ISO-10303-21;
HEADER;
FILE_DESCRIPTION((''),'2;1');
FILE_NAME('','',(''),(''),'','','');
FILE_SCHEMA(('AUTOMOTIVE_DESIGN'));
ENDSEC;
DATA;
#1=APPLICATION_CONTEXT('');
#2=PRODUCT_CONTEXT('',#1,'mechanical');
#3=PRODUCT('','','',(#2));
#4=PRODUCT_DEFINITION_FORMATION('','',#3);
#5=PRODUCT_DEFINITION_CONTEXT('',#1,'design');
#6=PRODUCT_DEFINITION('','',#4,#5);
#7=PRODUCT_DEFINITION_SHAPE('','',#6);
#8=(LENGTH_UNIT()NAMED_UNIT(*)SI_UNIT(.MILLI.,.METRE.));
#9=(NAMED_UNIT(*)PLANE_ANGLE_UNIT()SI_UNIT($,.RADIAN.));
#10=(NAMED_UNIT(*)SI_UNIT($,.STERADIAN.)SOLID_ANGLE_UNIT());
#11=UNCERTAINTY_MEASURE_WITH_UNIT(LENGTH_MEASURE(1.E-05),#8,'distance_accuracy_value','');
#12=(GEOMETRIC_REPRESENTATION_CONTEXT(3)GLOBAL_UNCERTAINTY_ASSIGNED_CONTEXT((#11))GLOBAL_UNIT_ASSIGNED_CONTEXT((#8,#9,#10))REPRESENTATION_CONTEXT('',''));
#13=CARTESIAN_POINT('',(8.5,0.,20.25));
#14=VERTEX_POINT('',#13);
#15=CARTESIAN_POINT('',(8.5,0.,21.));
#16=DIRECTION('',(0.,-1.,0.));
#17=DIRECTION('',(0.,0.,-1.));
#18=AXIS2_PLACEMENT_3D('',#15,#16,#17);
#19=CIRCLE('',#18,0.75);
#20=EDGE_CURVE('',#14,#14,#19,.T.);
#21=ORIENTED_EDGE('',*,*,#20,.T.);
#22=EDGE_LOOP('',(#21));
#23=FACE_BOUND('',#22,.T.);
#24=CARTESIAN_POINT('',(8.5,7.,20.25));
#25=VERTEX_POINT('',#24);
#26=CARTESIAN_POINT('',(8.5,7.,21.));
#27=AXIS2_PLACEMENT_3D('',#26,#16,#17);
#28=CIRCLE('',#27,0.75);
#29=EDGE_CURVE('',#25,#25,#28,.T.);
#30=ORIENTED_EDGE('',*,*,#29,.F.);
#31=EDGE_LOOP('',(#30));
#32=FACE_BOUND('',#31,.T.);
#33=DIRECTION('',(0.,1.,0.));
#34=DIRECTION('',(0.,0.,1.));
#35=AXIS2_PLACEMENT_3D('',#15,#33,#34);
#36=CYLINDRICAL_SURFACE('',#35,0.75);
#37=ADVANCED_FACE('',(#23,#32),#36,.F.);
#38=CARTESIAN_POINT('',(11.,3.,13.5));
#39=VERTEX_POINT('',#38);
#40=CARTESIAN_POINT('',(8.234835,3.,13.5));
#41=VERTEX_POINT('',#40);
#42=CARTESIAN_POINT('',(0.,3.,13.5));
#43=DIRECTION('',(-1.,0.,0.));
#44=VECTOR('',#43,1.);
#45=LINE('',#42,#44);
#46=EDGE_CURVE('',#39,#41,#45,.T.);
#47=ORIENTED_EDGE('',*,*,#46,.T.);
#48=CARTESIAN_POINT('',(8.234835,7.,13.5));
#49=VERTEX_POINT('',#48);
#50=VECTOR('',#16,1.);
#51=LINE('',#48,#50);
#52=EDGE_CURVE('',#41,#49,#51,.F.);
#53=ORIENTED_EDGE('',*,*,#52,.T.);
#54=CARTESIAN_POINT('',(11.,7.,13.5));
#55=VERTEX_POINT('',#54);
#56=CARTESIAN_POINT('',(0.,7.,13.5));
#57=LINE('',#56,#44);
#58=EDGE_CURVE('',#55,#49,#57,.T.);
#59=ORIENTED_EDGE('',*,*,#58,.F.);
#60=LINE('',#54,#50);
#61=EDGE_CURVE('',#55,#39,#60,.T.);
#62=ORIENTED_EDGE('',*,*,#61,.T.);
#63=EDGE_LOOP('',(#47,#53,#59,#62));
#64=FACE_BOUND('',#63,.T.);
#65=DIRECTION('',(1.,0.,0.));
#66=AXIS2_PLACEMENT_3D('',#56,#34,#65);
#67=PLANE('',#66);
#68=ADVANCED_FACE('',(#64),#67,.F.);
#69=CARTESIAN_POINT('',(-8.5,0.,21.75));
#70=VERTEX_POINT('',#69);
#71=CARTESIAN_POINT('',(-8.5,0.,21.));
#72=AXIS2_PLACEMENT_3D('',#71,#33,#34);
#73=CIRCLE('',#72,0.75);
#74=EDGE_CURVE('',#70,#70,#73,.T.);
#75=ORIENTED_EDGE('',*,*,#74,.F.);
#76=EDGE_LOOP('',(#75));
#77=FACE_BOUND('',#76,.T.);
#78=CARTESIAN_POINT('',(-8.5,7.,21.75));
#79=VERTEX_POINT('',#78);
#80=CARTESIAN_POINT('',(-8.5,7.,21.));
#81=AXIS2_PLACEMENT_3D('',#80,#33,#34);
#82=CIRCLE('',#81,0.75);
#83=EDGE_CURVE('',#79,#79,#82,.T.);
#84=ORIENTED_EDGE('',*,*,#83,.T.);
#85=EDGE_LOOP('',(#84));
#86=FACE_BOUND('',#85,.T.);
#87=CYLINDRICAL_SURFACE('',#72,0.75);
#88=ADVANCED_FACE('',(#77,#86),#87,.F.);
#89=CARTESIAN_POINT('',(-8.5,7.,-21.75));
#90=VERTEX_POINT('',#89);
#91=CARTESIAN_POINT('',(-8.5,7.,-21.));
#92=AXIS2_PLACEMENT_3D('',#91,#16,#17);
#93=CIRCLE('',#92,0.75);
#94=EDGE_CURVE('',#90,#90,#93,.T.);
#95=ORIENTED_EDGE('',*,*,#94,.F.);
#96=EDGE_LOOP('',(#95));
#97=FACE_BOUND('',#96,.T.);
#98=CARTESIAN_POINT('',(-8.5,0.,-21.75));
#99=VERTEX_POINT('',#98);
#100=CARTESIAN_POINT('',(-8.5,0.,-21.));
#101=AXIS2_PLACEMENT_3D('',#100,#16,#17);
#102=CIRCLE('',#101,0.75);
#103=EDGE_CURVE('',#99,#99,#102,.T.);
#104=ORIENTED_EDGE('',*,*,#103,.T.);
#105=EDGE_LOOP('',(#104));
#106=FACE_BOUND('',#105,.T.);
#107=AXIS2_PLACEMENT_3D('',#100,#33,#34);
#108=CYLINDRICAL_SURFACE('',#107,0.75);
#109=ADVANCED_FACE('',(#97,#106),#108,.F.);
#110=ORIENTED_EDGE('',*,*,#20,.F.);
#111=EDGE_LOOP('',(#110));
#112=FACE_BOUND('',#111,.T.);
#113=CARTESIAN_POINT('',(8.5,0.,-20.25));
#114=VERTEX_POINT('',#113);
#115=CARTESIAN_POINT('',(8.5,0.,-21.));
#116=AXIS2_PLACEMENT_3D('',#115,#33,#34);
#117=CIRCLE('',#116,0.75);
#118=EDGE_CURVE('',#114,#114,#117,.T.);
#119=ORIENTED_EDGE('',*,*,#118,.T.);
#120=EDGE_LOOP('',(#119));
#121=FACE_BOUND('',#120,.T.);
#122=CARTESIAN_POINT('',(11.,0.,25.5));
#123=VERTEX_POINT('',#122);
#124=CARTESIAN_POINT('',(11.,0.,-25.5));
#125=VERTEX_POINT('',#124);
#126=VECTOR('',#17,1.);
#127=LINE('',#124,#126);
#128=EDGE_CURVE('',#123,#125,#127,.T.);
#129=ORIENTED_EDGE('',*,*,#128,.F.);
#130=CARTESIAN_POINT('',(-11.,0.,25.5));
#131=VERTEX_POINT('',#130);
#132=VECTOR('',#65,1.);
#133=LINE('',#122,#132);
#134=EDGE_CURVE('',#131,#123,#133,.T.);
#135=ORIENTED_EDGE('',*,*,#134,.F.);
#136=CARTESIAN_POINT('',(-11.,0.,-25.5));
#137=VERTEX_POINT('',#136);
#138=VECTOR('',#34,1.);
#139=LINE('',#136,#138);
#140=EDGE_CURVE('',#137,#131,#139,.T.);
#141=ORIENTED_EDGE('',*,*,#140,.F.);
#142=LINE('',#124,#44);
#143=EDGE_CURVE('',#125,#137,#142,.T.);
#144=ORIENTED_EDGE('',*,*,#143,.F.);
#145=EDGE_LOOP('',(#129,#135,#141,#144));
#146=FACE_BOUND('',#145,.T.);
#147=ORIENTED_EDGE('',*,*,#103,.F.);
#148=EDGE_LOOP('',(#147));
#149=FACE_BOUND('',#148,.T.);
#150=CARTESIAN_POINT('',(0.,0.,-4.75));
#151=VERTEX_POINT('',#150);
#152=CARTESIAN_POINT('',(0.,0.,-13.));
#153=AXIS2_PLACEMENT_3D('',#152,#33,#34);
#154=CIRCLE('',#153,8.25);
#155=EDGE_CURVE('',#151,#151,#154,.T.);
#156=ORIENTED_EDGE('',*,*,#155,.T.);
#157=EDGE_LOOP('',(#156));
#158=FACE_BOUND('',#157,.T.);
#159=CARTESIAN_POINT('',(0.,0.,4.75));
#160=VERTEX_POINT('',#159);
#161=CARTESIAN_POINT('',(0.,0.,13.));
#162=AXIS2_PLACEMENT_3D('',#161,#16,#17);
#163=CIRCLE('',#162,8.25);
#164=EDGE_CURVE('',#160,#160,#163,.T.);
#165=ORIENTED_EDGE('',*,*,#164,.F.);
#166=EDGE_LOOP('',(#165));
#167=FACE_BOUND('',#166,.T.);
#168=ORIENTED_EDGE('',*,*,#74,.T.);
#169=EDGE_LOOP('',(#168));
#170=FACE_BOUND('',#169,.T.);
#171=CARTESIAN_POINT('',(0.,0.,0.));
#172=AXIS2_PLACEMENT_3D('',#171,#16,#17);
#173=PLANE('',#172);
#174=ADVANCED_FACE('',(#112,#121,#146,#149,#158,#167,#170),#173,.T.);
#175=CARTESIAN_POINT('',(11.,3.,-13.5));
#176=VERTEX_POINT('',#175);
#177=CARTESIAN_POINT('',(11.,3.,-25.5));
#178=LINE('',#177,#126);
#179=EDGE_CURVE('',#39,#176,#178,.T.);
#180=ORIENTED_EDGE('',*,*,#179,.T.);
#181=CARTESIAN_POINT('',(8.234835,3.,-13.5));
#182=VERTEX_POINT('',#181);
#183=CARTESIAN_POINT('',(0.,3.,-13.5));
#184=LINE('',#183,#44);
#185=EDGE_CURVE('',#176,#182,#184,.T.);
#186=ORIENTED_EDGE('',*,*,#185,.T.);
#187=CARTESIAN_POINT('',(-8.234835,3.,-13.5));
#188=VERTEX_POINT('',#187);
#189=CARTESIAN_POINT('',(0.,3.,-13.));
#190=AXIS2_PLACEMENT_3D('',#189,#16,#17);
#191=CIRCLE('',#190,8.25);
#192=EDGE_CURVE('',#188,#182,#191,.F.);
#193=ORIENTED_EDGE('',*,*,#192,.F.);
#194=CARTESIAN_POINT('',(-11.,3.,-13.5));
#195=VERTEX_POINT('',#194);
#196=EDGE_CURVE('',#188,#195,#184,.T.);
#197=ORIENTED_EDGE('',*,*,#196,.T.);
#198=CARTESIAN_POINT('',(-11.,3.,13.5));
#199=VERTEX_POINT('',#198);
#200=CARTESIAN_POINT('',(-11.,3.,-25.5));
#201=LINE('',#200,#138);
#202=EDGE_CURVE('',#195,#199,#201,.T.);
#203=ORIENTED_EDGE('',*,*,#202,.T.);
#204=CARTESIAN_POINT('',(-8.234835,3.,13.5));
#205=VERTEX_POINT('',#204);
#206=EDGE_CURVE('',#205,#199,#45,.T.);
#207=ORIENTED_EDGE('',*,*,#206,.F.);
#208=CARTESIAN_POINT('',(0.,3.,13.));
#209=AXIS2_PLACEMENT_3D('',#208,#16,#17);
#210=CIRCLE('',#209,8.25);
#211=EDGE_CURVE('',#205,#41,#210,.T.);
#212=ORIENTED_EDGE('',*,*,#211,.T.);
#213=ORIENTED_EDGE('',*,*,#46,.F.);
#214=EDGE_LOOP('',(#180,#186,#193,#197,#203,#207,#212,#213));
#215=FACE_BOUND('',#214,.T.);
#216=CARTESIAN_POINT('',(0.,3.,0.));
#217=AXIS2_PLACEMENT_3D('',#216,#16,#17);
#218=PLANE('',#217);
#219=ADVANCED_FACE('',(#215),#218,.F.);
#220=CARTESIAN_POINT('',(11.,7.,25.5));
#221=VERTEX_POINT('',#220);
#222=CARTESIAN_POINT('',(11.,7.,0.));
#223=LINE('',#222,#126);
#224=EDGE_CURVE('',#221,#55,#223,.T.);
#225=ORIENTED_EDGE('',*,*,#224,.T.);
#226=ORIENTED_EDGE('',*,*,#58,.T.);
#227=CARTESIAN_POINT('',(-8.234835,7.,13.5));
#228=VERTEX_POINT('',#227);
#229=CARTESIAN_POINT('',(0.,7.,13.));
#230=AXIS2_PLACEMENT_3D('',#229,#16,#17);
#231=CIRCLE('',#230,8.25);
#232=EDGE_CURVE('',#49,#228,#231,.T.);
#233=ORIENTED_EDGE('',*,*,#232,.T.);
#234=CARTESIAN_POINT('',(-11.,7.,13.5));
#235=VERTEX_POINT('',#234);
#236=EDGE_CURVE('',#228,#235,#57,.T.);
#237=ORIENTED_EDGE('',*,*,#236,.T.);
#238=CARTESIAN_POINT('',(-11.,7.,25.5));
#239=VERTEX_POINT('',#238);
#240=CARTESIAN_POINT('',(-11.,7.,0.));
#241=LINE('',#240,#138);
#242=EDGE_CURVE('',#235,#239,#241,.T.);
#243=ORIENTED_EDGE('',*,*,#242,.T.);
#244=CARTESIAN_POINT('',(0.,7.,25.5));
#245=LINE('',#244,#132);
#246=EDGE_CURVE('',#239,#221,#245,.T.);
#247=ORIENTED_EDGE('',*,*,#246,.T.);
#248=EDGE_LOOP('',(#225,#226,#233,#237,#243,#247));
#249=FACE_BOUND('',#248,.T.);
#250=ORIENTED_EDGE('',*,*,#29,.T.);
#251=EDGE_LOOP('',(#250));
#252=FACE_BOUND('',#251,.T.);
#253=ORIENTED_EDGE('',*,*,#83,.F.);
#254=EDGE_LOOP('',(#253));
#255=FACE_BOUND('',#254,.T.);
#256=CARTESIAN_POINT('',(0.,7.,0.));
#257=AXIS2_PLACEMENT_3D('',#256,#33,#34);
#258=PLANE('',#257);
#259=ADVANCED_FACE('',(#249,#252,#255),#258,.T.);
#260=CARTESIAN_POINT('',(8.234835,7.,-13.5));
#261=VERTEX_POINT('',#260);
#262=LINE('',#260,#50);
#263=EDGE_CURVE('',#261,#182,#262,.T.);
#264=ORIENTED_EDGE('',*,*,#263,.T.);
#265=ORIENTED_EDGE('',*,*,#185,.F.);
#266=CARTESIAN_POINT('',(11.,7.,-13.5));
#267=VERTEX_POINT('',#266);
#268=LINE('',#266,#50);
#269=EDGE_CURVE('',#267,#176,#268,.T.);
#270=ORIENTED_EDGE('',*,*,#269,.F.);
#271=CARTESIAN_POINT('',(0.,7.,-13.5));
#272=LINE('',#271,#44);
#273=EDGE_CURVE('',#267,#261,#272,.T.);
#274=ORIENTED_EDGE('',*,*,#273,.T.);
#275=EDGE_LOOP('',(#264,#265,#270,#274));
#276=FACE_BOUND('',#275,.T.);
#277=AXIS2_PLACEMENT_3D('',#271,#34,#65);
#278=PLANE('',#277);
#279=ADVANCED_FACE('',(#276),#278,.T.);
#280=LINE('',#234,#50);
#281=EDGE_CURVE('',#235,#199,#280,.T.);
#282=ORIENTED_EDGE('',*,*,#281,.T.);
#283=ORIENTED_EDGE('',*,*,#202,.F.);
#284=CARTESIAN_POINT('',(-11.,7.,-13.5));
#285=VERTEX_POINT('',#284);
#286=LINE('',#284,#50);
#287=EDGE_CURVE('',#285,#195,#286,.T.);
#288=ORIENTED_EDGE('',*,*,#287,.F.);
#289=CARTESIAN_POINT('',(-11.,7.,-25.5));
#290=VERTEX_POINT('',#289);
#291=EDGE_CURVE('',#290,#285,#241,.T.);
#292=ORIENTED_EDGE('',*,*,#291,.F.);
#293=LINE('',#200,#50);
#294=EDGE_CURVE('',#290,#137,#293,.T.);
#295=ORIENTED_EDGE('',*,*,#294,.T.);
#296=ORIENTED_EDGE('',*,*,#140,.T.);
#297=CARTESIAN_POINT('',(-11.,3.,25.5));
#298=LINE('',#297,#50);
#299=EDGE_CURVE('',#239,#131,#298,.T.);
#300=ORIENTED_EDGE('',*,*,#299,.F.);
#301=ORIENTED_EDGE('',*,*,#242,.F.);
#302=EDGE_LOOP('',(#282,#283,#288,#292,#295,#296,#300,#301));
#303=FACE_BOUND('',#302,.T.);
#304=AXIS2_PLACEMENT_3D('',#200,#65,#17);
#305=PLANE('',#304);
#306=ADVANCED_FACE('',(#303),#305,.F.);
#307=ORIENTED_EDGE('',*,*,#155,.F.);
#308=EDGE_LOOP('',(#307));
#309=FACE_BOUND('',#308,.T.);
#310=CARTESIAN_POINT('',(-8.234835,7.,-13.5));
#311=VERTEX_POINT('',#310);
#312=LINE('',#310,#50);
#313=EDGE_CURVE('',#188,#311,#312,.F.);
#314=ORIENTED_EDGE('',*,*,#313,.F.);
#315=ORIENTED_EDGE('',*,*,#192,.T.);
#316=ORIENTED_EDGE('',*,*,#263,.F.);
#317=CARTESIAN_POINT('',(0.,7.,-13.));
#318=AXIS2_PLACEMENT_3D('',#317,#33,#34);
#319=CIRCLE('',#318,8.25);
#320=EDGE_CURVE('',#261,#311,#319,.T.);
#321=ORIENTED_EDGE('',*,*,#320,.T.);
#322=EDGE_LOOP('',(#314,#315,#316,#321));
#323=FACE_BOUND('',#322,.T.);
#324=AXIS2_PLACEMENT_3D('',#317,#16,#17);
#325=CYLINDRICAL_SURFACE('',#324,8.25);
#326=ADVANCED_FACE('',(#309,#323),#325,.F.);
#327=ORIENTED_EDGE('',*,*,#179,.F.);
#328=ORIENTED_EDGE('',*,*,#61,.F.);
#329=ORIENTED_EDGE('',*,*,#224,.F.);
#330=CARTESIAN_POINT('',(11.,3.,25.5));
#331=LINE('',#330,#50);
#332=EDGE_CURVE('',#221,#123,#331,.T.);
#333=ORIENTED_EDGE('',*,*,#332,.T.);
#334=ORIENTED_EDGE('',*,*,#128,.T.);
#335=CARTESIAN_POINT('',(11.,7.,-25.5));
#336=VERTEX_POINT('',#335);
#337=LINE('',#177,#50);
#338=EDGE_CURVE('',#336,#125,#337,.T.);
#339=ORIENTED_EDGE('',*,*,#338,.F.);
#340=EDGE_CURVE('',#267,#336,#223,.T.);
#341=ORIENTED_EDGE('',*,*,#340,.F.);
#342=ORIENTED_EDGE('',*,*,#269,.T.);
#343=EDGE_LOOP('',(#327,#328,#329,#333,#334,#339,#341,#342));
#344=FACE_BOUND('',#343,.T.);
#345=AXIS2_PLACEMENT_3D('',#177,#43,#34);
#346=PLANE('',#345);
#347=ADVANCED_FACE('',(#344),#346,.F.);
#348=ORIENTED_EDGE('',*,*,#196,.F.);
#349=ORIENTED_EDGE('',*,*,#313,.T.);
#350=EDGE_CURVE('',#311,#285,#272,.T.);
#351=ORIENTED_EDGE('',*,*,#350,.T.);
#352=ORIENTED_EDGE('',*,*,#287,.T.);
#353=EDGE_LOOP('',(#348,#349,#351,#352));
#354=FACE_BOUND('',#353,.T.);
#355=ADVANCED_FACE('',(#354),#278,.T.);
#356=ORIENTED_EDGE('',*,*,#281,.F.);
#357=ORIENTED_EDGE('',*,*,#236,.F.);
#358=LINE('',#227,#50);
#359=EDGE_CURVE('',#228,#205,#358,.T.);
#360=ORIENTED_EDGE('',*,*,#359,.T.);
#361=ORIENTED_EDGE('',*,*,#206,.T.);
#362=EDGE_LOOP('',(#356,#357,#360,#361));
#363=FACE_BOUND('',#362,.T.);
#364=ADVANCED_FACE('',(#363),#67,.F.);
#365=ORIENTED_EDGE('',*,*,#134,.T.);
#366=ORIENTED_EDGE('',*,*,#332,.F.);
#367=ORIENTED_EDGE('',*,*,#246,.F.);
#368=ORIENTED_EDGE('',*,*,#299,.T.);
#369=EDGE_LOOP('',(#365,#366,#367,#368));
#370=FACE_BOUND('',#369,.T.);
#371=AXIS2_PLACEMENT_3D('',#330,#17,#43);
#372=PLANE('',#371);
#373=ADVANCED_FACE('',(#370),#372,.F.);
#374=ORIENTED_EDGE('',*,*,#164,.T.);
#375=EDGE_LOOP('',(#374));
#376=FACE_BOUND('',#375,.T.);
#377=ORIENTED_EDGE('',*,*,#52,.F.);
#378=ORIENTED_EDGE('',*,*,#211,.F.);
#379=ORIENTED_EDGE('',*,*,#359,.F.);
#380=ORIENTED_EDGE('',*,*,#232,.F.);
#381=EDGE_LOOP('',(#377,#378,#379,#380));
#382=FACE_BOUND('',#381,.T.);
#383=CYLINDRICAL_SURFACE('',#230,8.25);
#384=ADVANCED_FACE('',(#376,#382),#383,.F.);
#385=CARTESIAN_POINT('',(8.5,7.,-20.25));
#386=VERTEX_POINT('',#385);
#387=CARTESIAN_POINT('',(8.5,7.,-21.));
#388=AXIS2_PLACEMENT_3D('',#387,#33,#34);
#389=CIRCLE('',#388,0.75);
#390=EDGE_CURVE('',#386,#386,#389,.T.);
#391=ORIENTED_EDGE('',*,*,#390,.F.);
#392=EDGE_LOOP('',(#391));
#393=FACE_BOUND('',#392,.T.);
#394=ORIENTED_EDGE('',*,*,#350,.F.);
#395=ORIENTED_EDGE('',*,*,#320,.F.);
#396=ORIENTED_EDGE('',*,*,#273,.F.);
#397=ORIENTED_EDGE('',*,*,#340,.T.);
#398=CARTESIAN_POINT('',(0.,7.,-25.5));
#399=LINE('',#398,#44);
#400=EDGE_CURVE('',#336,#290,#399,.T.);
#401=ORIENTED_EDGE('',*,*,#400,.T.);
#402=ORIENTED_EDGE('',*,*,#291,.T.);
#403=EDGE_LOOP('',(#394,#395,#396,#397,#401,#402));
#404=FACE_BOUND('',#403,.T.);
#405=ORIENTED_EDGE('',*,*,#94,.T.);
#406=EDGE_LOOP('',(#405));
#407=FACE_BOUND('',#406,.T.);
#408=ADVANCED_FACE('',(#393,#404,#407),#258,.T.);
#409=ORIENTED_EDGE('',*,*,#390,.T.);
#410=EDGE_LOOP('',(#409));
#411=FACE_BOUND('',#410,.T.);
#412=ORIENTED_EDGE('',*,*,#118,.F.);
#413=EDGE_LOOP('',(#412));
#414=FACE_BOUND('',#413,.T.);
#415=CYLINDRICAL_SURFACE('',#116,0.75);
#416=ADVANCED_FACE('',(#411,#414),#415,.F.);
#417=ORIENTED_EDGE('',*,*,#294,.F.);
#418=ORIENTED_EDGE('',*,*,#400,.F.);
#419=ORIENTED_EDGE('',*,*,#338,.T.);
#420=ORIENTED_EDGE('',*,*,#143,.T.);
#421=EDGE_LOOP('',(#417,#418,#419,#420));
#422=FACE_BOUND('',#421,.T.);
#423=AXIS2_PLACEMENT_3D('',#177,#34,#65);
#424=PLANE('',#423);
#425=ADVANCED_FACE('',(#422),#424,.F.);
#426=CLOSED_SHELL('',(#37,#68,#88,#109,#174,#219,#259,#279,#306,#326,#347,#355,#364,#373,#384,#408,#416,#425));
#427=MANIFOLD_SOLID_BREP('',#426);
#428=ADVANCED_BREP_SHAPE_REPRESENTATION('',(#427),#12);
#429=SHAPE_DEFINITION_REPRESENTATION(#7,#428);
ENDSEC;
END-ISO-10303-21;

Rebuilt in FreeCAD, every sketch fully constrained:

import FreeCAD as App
import Part
import Sketcher

V = App.Vector
Q = App.Units.Quantity


def add_polygon(sketch, points):
    """Adds a closed chain of lines whose ends are joined by coincident constraints."""
    first, n = sketch.GeometryCount, len(points)
    for a, b in zip(points, points[1:] + points[:1]):
        sketch.addGeometry(Part.LineSegment(App.Vector(*a, 0), App.Vector(*b, 0)), False)
    for i in range(n):
        sketch.addConstraint(Sketcher.Constraint("Coincident", first + i, 2, first + (i + 1) % n, 1))

doc = App.newDocument("Part")
params = doc.addObject("Spreadsheet::Sheet", "Params")
for row, (alias, value) in enumerate([
    ("sketch1_width", "22 mm"),
    ("sketch1_height", "51 mm"),
    ("pad1_length", "3 mm"),
    ("sketch2_width", "22 mm"),
    ("sketch2_height", "12 mm"),
    ("pad2_length", "4 mm"),
    ("sketch3_diameter", "16.5 mm"),
    ("sketch4_diameter", "1.5 mm"),
], start=1):
    params.set(f"A{row}", alias)
    params.set(f"B{row}", "=" + value)
    params.setAlias(f"B{row}", alias)

body = doc.addObject("PartDesign::Body", "Body")

# Sketch on XZ plane
sketch1 = body.newObject("Sketcher::SketchObject", "Sketch")
sketch1.AttachmentSupport = (doc.getObject("XZ_Plane"), [""])
sketch1.MapMode = "FlatFace"
add_polygon(sketch1, [(-11, -26), (-11, 26), (11, 26), (11, -26)])  # lines 0-3
sketch1.addConstraint([
    Sketcher.Constraint("Vertical", 0),
    Sketcher.Constraint("Horizontal", 1),
    Sketcher.Constraint("Vertical", 2),
    Sketcher.Constraint("Horizontal", 3),
    Sketcher.Constraint("Symmetric", 0, 2, 2, 2, -1, 1),
    Sketcher.Constraint("DistanceX", 1, 1, 1, 2, Q("22 mm")),
    Sketcher.Constraint("DistanceY", 0, 1, 0, 2, Q("51 mm")),
])
sketch1.setExpression("Constraints[9]", "Params.sketch1_width")
sketch1.setExpression("Constraints[10]", "Params.sketch1_height")
pad1 = body.newObject("PartDesign::Pad", "Pad")
pad1.Profile = sketch1
pad1.setExpression("Length", "Params.pad1_length")
pad1.Reversed = True

# Sketch on XZ plane
sketch2 = body.newObject("Sketcher::SketchObject", "Sketch001")
sketch2.AttachmentSupport = (doc.getObject("XZ_Plane"), [""])
sketch2.MapMode = "FlatFace"
sketch2.AttachmentOffset = App.Placement(V(0, 0, -3), App.Rotation())
add_polygon(sketch2, [(-11, 14), (-11, 26), (11, 26), (11, 14)])  # lines 0-3
add_polygon(sketch2, [(-11, -26), (-11, -14), (11, -14), (11, -26)])  # lines 4-7
sketch2.addConstraint([
    Sketcher.Constraint("Vertical", 0),
    Sketcher.Constraint("Horizontal", 1),
    Sketcher.Constraint("Vertical", 2),
    Sketcher.Constraint("Horizontal", 3),
    Sketcher.Constraint("Vertical", 4),
    Sketcher.Constraint("Horizontal", 5),
    Sketcher.Constraint("Vertical", 6),
    Sketcher.Constraint("Horizontal", 7),
    Sketcher.Constraint("Symmetric", 2, 2, 4, 2, -1, 1),
    Sketcher.Constraint("Symmetric", 0, 2, 6, 2, -1, 1),
    Sketcher.Constraint("Vertical", 3, 2, 4, 2),
    Sketcher.Constraint("DistanceX", 1, 1, 1, 2, Q("22 mm")),
    Sketcher.Constraint("DistanceY", 0, 1, 0, 2, Q("12 mm")),
    Sketcher.Constraint("DistanceY", 4, 2, 3, 2, Q("27 mm")),
])
sketch2.setExpression("Constraints[19]", "Params.sketch2_width")
sketch2.setExpression("Constraints[20]", "Params.sketch2_height")
pad2 = body.newObject("PartDesign::Pad", "Pad001")
pad2.Profile = sketch2
pad2.setExpression("Length", "Params.pad2_length")
pad2.Reversed = True

# Sketch on XZ plane
sketch3 = body.newObject("Sketcher::SketchObject", "Sketch002")
sketch3.AttachmentSupport = (doc.getObject("XZ_Plane"), [""])
sketch3.MapMode = "FlatFace"
sketch3.addGeometry([
    Part.Circle(V(0, 13, 0), V(0, 0, 1), 8),
    Part.Circle(V(0, -13, 0), V(0, 0, 1), 8),
], False)
sketch3.addConstraint([
    Sketcher.Constraint("Equal", 0, 1),
    Sketcher.Constraint("Symmetric", 0, 3, 1, 3, -1, 1),
    Sketcher.Constraint("PointOnObject", 0, 3, -2),
    Sketcher.Constraint("Diameter", 0, Q("16.5 mm")),
    Sketcher.Constraint("DistanceY", -1, 1, 0, 3, Q("13 mm")),
])
sketch3.setExpression("Constraints[3]", "Params.sketch3_diameter")
pocket1 = body.newObject("PartDesign::Pocket", "Pocket")
pocket1.Profile = sketch3
pocket1.Type = "ThroughAll"

# Sketch on XZ plane
sketch4 = body.newObject("Sketcher::SketchObject", "Sketch003")
sketch4.AttachmentSupport = (doc.getObject("XZ_Plane"), [""])
sketch4.MapMode = "FlatFace"
sketch4.AttachmentOffset = App.Placement(V(0, 0, -7), App.Rotation())
sketch4.addGeometry([
    Part.Circle(V(-8.5, 21, 0), V(0, 0, 1), 0.8),
    Part.Circle(V(8.5, 21, 0), V(0, 0, 1), 0.8),
    Part.Circle(V(8.5, -21, 0), V(0, 0, 1), 0.8),
    Part.Circle(V(-8.5, -21, 0), V(0, 0, 1), 0.8),
], False)
sketch4.addConstraint([
    Sketcher.Constraint("Equal", 0, 1),
    Sketcher.Constraint("Equal", 1, 2),
    Sketcher.Constraint("Equal", 2, 3),
    Sketcher.Constraint("Symmetric", 0, 3, 2, 3, -1, 1),
    Sketcher.Constraint("Symmetric", 1, 3, 3, 3, -1, 1),
    Sketcher.Constraint("Symmetric", 0, 3, 1, 3, -2),
    Sketcher.Constraint("Diameter", 0, Q("1.5 mm")),
    Sketcher.Constraint("DistanceY", -1, 1, 0, 3, Q("21 mm")),
    Sketcher.Constraint("DistanceX", 0, 3, 1, 3, Q("17 mm")),
])
sketch4.setExpression("Constraints[6]", "Params.sketch4_diameter")
pocket2 = body.newObject("PartDesign::Pocket", "Pocket001")
pocket2.Profile = sketch4
pocket2.Type = "ThroughAll"
pocket2.Reversed = True

doc.recompute()
